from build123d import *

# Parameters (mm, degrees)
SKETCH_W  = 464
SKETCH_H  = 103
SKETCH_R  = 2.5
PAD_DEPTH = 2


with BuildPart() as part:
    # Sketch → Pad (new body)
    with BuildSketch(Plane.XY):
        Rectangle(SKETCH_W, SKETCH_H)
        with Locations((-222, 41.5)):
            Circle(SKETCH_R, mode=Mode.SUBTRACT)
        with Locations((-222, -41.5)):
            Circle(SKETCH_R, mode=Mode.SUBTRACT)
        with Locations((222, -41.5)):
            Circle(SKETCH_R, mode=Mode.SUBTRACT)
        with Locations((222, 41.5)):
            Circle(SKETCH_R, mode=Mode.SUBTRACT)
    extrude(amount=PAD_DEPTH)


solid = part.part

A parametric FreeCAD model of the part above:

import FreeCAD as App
import Part
import Sketcher
from FreeCAD import Vector
Q = App.Units.Quantity

doc = App.newDocument("Part")
body = doc.addObject("PartDesign::Body", "Body")

sketch1 = doc.addObject("Sketcher::SketchObject", "Sketch")
body.addObject(sketch1)
sketch1.AttachmentSupport = (doc.XY_Plane, [""])
sketch1.MapMode = "FlatFace"
sketch1.addGeometry(Part.LineSegment(Vector(-232, 51.5, 0), Vector(-232, -51.5, 0)), False)
sketch1.addGeometry(Part.LineSegment(Vector(-232, -51.5, 0), Vector(232, -51.5, 0)), False)
sketch1.addGeometry(Part.LineSegment(Vector(232, -51.5, 0), Vector(232, 51.5, 0)), False)
sketch1.addGeometry(Part.LineSegment(Vector(232, 51.5, 0), Vector(-232, 51.5, 0)), False)
sketch1.addGeometry(Part.Circle(Vector(-222, -41.5, 0), Vector(0, 0, 1), 2.5), False)
sketch1.addGeometry(Part.Circle(Vector(222, -41.5, 0), Vector(0, 0, 1), 2.5), False)
sketch1.addGeometry(Part.Circle(Vector(-222, 41.5, 0), Vector(0, 0, 1), 2.5), False)
sketch1.addGeometry(Part.Circle(Vector(222, 41.5, 0), Vector(0, 0, 1), 2.5), False)
sketch1.addConstraint(Sketcher.Constraint("Coincident", 0, 2, 1, 1))
sketch1.addConstraint(Sketcher.Constraint("Coincident", 1, 2, 2, 1))
sketch1.addConstraint(Sketcher.Constraint("Coincident", 2, 2, 3, 1))
sketch1.addConstraint(Sketcher.Constraint("Coincident", 3, 2, 0, 1))
sketch1.addConstraint(Sketcher.Constraint("Vertical", 0))
sketch1.addConstraint(Sketcher.Constraint("Horizontal", 1))
sketch1.addConstraint(Sketcher.Constraint("Vertical", 2))
sketch1.addConstraint(Sketcher.Constraint("Horizontal", 3))
sketch1.addConstraint(Sketcher.Constraint("Equal", 4, 5))
sketch1.addConstraint(Sketcher.Constraint("Equal", 5, 6))
sketch1.addConstraint(Sketcher.Constraint("Equal", 6, 7))
sketch1.addConstraint(Sketcher.Constraint("Symmetric", 5, 3, 6, 3, -1, 1))
sketch1.addConstraint(Sketcher.Constraint("Symmetric", 4, 3, 7, 3, -1, 1))
sketch1.addConstraint(Sketcher.Constraint("Symmetric", 0, 2, 2, 2, -1, 1))
sketch1.addConstraint(Sketcher.Constraint("Symmetric", 4, 3, 5, 3, -2))
sketch1.addConstraint(Sketcher.Constraint("Diameter", 4, Q("5 mm")))
sketch1.addConstraint(Sketcher.Constraint("DistanceX", 1, 1, 1, 2, Q("464 mm")))
sketch1.addConstraint(Sketcher.Constraint("DistanceY", 0, 2, 0, 1, Q("103 mm")))
sketch1.addConstraint(Sketcher.Constraint("DistanceX", 4, 3, -1, 1, Q("222 mm")))
sketch1.addConstraint(Sketcher.Constraint("DistanceY", 4, 3, 6, 3, Q("83 mm")))
pad1 = doc.addObject("PartDesign::Pad", "Pad")
body.addObject(pad1)
pad1.Profile = sketch1
pad1.Length = 2

doc.recompute()
